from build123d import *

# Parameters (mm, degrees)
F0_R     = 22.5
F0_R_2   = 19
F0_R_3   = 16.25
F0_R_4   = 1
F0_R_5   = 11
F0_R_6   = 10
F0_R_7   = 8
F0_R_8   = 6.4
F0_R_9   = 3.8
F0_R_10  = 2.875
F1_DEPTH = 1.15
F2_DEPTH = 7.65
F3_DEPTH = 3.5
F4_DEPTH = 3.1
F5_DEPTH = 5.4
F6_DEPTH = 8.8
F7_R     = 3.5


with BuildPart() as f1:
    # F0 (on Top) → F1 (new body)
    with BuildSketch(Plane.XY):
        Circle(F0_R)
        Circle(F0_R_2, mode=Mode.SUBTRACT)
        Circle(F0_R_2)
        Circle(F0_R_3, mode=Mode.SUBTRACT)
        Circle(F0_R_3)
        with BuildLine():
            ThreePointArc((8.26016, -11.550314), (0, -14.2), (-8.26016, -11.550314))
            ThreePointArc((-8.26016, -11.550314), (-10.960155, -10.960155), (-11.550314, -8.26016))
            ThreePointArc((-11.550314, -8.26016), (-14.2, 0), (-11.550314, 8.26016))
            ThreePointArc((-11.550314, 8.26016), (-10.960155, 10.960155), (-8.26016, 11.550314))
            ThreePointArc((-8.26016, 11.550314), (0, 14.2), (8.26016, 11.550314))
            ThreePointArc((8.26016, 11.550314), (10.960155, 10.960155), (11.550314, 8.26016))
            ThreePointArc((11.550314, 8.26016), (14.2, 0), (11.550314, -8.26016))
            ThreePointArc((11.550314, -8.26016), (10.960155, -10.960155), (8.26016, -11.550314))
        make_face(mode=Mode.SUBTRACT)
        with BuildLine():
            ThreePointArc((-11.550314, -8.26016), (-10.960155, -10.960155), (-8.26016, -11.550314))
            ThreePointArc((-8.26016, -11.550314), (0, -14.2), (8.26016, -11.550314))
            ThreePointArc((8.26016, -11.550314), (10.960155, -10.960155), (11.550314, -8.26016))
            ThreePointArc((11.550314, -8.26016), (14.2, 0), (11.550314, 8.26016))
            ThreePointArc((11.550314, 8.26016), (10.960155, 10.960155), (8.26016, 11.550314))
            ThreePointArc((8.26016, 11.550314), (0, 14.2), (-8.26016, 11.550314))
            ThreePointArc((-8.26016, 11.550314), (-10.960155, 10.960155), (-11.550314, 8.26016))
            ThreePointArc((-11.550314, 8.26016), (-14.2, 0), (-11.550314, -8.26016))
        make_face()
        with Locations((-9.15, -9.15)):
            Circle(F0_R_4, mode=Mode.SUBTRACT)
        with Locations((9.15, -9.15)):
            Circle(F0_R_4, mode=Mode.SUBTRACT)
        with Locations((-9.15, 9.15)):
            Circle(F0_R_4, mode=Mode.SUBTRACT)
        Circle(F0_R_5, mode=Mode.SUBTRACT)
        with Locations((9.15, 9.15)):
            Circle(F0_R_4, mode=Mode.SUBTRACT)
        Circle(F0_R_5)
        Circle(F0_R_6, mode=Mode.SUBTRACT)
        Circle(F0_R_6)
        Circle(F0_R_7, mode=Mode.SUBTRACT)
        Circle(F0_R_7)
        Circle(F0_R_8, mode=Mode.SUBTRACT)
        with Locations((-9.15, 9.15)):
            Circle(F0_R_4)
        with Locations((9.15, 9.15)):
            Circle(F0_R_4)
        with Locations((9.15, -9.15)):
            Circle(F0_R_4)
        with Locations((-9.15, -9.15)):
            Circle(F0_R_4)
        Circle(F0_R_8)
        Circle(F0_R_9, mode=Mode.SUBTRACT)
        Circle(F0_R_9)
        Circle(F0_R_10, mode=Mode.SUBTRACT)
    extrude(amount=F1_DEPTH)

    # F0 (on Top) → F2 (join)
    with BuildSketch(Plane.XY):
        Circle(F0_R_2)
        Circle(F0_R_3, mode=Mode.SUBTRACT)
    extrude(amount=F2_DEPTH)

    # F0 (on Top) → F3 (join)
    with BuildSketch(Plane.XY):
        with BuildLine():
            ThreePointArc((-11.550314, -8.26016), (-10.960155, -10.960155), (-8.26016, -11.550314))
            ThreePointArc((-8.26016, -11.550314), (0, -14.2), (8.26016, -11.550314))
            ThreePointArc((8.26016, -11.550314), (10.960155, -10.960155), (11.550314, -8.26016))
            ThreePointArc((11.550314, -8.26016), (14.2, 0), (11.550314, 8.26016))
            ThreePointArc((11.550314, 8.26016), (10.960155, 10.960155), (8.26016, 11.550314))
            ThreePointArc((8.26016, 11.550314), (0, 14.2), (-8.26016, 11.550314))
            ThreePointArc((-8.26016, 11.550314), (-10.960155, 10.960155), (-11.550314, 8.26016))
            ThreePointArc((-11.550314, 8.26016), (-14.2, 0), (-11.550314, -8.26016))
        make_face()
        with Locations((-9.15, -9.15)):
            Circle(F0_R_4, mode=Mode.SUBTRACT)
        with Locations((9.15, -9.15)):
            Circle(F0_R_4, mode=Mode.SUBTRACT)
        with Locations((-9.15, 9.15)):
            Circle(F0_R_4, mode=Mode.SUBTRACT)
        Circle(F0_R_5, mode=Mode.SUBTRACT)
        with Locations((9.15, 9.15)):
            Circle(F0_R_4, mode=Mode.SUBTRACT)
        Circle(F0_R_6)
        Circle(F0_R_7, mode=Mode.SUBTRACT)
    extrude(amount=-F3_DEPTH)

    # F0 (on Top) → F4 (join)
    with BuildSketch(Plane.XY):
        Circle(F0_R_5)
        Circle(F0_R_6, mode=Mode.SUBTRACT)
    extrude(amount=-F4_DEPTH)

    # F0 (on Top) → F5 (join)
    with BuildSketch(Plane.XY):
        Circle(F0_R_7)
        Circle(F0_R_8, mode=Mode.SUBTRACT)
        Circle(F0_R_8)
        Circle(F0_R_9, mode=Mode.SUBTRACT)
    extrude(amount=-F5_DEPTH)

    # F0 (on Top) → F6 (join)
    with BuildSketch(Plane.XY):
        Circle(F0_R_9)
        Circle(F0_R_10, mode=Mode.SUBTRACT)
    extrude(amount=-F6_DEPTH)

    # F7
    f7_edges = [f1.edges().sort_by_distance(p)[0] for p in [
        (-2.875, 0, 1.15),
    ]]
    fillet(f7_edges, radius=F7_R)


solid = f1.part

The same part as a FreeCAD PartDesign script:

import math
import FreeCAD as App
import Part
import Sketcher

V = App.Vector
Q = App.Units.Quantity


def edges_at(feature, points):
    """Names of the edges that pass closest to the given points."""
    edges = feature.Shape.Edges
    near = lambda p: min(range(len(edges)), key=lambda i: edges[i].distToShape(Part.Vertex(*p))[0])
    return sorted({f"Edge{near(p) + 1}" for p in points})

doc = App.newDocument("Part")
body = doc.addObject("PartDesign::Body", "Body")

sketch1 = body.newObject("Sketcher::SketchObject", "Sketch")
sketch1.AttachmentSupport = (doc.getObject("XY_Plane"), [""])
sketch1.MapMode = "FlatFace"
sketch1.addGeometry([
    Part.Circle(V(0, 0, 0), V(0, 0, 1), 22.5),
    Part.Circle(V(0, 0, 0), V(0, 0, 1), 2.9),
], False)
sketch1.addConstraint([
    Sketcher.Constraint("Coincident", 0, 3, -1, 1),
    Sketcher.Constraint("Coincident", 1, 3, -1, 1),
    Sketcher.Constraint("Diameter", 0, Q("45 mm")),
    Sketcher.Constraint("Diameter", 1, Q("5.75 mm")),
])
pad1 = body.newObject("PartDesign::Pad", "Pad")
pad1.Profile = sketch1
pad1.Length = 1.15

sketch2 = body.newObject("Sketcher::SketchObject", "Sketch001")
sketch2.AttachmentSupport = (doc.getObject("XY_Plane"), [""])
sketch2.MapMode = "FlatFace"
sketch2.addGeometry([
    Part.Circle(V(0, 0, 0), V(0, 0, 1), 19),
    Part.Circle(V(0, 0, 0), V(0, 0, 1), 16),
], False)
sketch2.addConstraint([
    Sketcher.Constraint("Coincident", 0, 3, -1, 1),
    Sketcher.Constraint("Coincident", 1, 3, -1, 1),
    Sketcher.Constraint("Diameter", 0, Q("38 mm")),
    Sketcher.Constraint("Diameter", 1, Q("32.5 mm")),
])
pad2 = body.newObject("PartDesign::Pad", "Pad001")
pad2.Profile = sketch2
pad2.Length = 7.65

sketch3 = body.newObject("Sketcher::SketchObject", "Sketch002")
sketch3.AttachmentSupport = (doc.getObject("XY_Plane"), [""])
sketch3.MapMode = "FlatFace"
sketch3.addGeometry([
    Part.ArcOfCircle(Part.Circle(V(-9.1, -9.1, 0), V(0, 0, 1), 2.6), math.radians(160), math.radians(290)),
    Part.ArcOfCircle(Part.Circle(V(0, 0, 0), V(0, 0, 1), 14.2), math.radians(-126), math.radians(-54)),
    Part.ArcOfCircle(Part.Circle(V(9.1, -9.1, 0), V(0, 0, 1), 2.6), math.radians(-110), math.radians(20)),
    Part.ArcOfCircle(Part.Circle(V(0, 0, 0), V(0, 0, 1), 14.2), math.radians(-36), math.radians(36)),
    Part.ArcOfCircle(Part.Circle(V(9.1, 9.1, 0), V(0, 0, 1), 2.6), math.radians(-20), math.radians(110)),
    Part.ArcOfCircle(Part.Circle(V(0, 0, 0), V(0, 0, 1), 14.2), math.radians(54), math.radians(126)),
    Part.ArcOfCircle(Part.Circle(V(-9.1, 9.1, 0), V(0, 0, 1), 2.6), math.radians(70), math.radians(200)),
    Part.ArcOfCircle(Part.Circle(V(0, 0, 0), V(0, 0, 1), 14.2), math.radians(144), math.radians(216)),
    Part.Circle(V(-9.2, -9.2, 0), V(0, 0, 1), 1),
    Part.Circle(V(9.2, -9.2, 0), V(0, 0, 1), 1),
    Part.Circle(V(-9.2, 9.2, 0), V(0, 0, 1), 1),
    Part.Circle(V(0, 0, 0), V(0, 0, 1), 11),
    Part.Circle(V(9.2, 9.2, 0), V(0, 0, 1), 1),
    Part.Circle(V(0, 0, 0), V(0, 0, 1), 10),
    Part.Circle(V(0, 0, 0), V(0, 0, 1), 8),
], False)
sketch3.addConstraint([
    Sketcher.Constraint("Coincident", 0, 2, 1, 1),
    Sketcher.Constraint("Coincident", 1, 2, 2, 1),
    Sketcher.Constraint("Coincident", 2, 2, 3, 1),
    Sketcher.Constraint("Coincident", 3, 2, 4, 1),
    Sketcher.Constraint("Coincident", 4, 2, 5, 1),
    Sketcher.Constraint("Coincident", 5, 2, 6, 1),
    Sketcher.Constraint("Coincident", 6, 2, 7, 1),
    Sketcher.Constraint("Coincident", 7, 2, 0, 1),
    Sketcher.Constraint("Coincident", 1, 3, -1, 1),
    Sketcher.Constraint("Coincident", 3, 3, -1, 1),
    Sketcher.Constraint("Coincident", 5, 3, -1, 1),
    Sketcher.Constraint("Coincident", 7, 3, -1, 1),
    Sketcher.Constraint("Coincident", 11, 3, -1, 1),
    Sketcher.Constraint("Coincident", 13, 3, -1, 1),
    Sketcher.Constraint("Coincident", 14, 3, -1, 1),
    Sketcher.Constraint("Coincident", 8, 3, 0, 3),
    Sketcher.Constraint("Coincident", 9, 3, 2, 3),
    Sketcher.Constraint("Coincident", 10, 3, 6, 3),
    Sketcher.Constraint("Coincident", 12, 3, 4, 3),
    Sketcher.Constraint("Equal", 0, 2),
    Sketcher.Constraint("Equal", 1, 3),
    Sketcher.Constraint("Equal", 2, 4),
    Sketcher.Constraint("Equal", 3, 5),
    Sketcher.Constraint("Equal", 4, 6),
    Sketcher.Constraint("Equal", 5, 7),
    Sketcher.Constraint("Equal", 8, 9),
    Sketcher.Constraint("Equal", 9, 10),
    Sketcher.Constraint("Equal", 10, 12),
    Sketcher.Constraint("Symmetric", 0, 3, 4, 3, -1, 1),
    Sketcher.Constraint("Symmetric", 2, 3, 6, 3, -1, 1),
    Sketcher.Constraint("Symmetric", 0, 3, 2, 3, -2),
    Sketcher.Constraint("Diameter", 8, Q("2 mm")),
    Sketcher.Constraint("Diameter", 11, Q("22 mm")),
    Sketcher.Constraint("Diameter", 13, Q("20 mm")),
    Sketcher.Constraint("Diameter", 14, Q("16 mm")),
    Sketcher.Constraint("Radius", 1, Q("14.199999 mm")),
    Sketcher.Constraint("DistanceX", 0, 3, 2, 3, Q("18.3 mm")),
    Sketcher.Constraint("DistanceY", 2, 3, 4, 3, Q("18.3 mm")),
    Sketcher.Constraint("Radius", 0, Q("2.559946 mm")),
])
pad3 = body.newObject("PartDesign::Pad", "Pad002")
pad3.Profile = sketch3
pad3.Length = 3.5
pad3.Reversed = True

sketch4 = body.newObject("Sketcher::SketchObject", "Sketch003")
sketch4.AttachmentSupport = (doc.getObject("XY_Plane"), [""])
sketch4.MapMode = "FlatFace"
sketch4.addGeometry([
    Part.Circle(V(0, 0, 0), V(0, 0, 1), 11),
    Part.Circle(V(0, 0, 0), V(0, 0, 1), 10),
], False)
sketch4.addConstraint([
    Sketcher.Constraint("Coincident", 0, 3, -1, 1),
    Sketcher.Constraint("Coincident", 1, 3, -1, 1),
    Sketcher.Constraint("Diameter", 0, Q("22 mm")),
    Sketcher.Constraint("Diameter", 1, Q("20 mm")),
])
pad4 = body.newObject("PartDesign::Pad", "Pad003")
pad4.Profile = sketch4
pad4.Length = 3.1
pad4.Reversed = True

sketch5 = body.newObject("Sketcher::SketchObject", "Sketch004")
sketch5.AttachmentSupport = (doc.getObject("XY_Plane"), [""])
sketch5.MapMode = "FlatFace"
sketch5.addGeometry([
    Part.Circle(V(0, 0, 0), V(0, 0, 1), 8),
    Part.Circle(V(0, 0, 0), V(0, 0, 1), 3.8),
], False)
sketch5.addConstraint([
    Sketcher.Constraint("Coincident", 0, 3, -1, 1),
    Sketcher.Constraint("Coincident", 1, 3, -1, 1),
    Sketcher.Constraint("Diameter", 0, Q("16 mm")),
    Sketcher.Constraint("Diameter", 1, Q("7.6 mm")),
])
pad5 = body.newObject("PartDesign::Pad", "Pad004")
pad5.Profile = sketch5
pad5.Length = 5.4
pad5.Reversed = True

sketch6 = body.newObject("Sketcher::SketchObject", "Sketch005")
sketch6.AttachmentSupport = (doc.getObject("XY_Plane"), [""])
sketch6.MapMode = "FlatFace"
sketch6.addGeometry([
    Part.Circle(V(0, 0, 0), V(0, 0, 1), 3.8),
    Part.Circle(V(0, 0, 0), V(0, 0, 1), 2.9),
], False)
sketch6.addConstraint([
    Sketcher.Constraint("Coincident", 0, 3, -1, 1),
    Sketcher.Constraint("Coincident", 1, 3, -1, 1),
    Sketcher.Constraint("Diameter", 0, Q("7.6 mm")),
    Sketcher.Constraint("Diameter", 1, Q("5.75 mm")),
])
pad6 = body.newObject("PartDesign::Pad", "Pad005")
pad6.Profile = sketch6
pad6.Length = 8.8
pad6.Reversed = True
doc.recompute()

fillet = body.newObject("PartDesign::Fillet", "Fillet")
fillet.Base = (pad6, edges_at(pad6, [(-2.875, 0, 1.15)]))
fillet.Radius = 3.5

doc.recompute()
